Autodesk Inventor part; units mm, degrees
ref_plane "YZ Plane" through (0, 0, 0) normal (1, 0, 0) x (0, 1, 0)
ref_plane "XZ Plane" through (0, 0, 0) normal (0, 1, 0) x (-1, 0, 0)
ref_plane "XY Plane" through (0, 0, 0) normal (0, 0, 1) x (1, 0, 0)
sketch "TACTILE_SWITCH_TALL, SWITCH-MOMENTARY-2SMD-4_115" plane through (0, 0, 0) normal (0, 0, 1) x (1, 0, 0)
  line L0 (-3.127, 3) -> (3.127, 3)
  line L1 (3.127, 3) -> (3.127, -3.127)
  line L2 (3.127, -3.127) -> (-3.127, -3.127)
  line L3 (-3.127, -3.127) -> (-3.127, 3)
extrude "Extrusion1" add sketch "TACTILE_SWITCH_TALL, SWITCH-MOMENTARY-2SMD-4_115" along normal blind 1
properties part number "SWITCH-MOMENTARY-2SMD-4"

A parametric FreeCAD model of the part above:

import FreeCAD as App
import Part
import Sketcher
Q = App.Units.Quantity

doc = App.newDocument("Part")
params = doc.addObject("Spreadsheet::Sheet", "Params")
for row, (alias, value) in enumerate([
    ("pad1_length", "1 mm"),
], start=1):
    params.set(f"A{row}", alias)
    params.set(f"B{row}", "=" + value)
    params.setAlias(f"B{row}", alias)

body = doc.addObject("PartDesign::Body", "Body")

sketch1 = body.newObject("Sketcher::SketchObject", "Sketch")
sketch1.AttachmentSupport = (doc.getObject("XY_Plane"), [""])
sketch1.MapMode = "FlatFace"
sketch1.addGeometry(Part.LineSegment(App.Vector(3, 3, 0), App.Vector(-3, 3, 0)), False)
sketch1.addGeometry(Part.LineSegment(App.Vector(-3, 3, 0), App.Vector(-3, -3, 0)), False)
sketch1.addGeometry(Part.LineSegment(App.Vector(-3, -3, 0), App.Vector(3, -3, 0)), False)
sketch1.addGeometry(Part.LineSegment(App.Vector(3, -3, 0), App.Vector(3, 3, 0)), False)
sketch1.addConstraint(Sketcher.Constraint("Coincident", 0, 2, 1, 1))
sketch1.addConstraint(Sketcher.Constraint("Coincident", 1, 2, 2, 1))
sketch1.addConstraint(Sketcher.Constraint("Coincident", 2, 2, 3, 1))
sketch1.addConstraint(Sketcher.Constraint("Coincident", 3, 2, 0, 1))
sketch1.addConstraint(Sketcher.Constraint("Horizontal", 0))
sketch1.addConstraint(Sketcher.Constraint("Vertical", 1))
sketch1.addConstraint(Sketcher.Constraint("Horizontal", 2))
sketch1.addConstraint(Sketcher.Constraint("Vertical", 3))
sketch1.addConstraint(Sketcher.Constraint("DistanceY", -1, 1, 0, 2, Q("3 mm")))
sketch1.addConstraint(Sketcher.Constraint("DistanceX", 0, 2, 0, 1, Q("6.254 mm")))
sketch1.addConstraint(Sketcher.Constraint("DistanceY", 1, 2, 1, 1, Q("6.127 mm")))
sketch1.addConstraint(Sketcher.Constraint("DistanceX", 0, 2, -1, 1, Q("3.127 mm")))
pad1 = body.newObject("PartDesign::Pad", "Pad")
pad1.Profile = sketch1
pad1.setExpression("Length", "Params.pad1_length")

doc.recompute()
